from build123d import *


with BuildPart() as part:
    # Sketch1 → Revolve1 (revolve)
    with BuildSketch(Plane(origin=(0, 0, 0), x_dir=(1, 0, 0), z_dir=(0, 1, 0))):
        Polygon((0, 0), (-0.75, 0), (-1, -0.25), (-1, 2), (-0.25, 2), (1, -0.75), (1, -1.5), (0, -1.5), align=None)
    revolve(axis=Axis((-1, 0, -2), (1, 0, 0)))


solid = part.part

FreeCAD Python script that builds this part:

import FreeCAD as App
import Part
import Sketcher
Q = App.Units.Quantity


def add_polygon(sketch, points):
    """Adds a closed chain of lines whose ends are joined by coincident constraints."""
    first, n = sketch.GeometryCount, len(points)
    for a, b in zip(points, points[1:] + points[:1]):
        sketch.addGeometry(Part.LineSegment(App.Vector(*a, 0), App.Vector(*b, 0)), False)
    for i in range(n):
        sketch.addConstraint(Sketcher.Constraint("Coincident", first + i, 2, first + (i + 1) % n, 1))

doc = App.newDocument("Part")
params = doc.addObject("Spreadsheet::Sheet", "Params")
for row, (alias, value) in enumerate([
    ("sketch1_width", "1 mm"),
    ("sketch1_width2", "2 mm"),
    ("sketch1_height", "1.5 mm"),
    ("sketch1_width3", "0.75 mm"),
    ("revolution_angle", "360 deg"),
], start=1):
    params.set(f"A{row}", alias)
    params.set(f"B{row}", "=" + value)
    params.setAlias(f"B{row}", alias)

body = doc.addObject("PartDesign::Body", "Body")

# Sketch on XZ plane
sketch1 = body.newObject("Sketcher::SketchObject", "Sketch")
sketch1.AttachmentSupport = (doc.getObject("XZ_Plane"), [""])
sketch1.MapMode = "FlatFace"
add_polygon(sketch1, [(-0.75, 0), (0, 0), (0, 1.5), (1, 1.5), (1, 0.75), (-0.25, -2), (-1, -2), (-1, 0.25)])  # lines 0-7
sketch1.addGeometry(Part.LineSegment(App.Vector(-1, -2, 0), App.Vector(1, -2, 0)), True)  # axis
sketch1.addConstraint([
    Sketcher.Constraint("Horizontal", 0),
    Sketcher.Constraint("Vertical", 1),
    Sketcher.Constraint("Horizontal", 2),
    Sketcher.Constraint("Vertical", 3),
    Sketcher.Constraint("Horizontal", 5),
    Sketcher.Constraint("Vertical", 6),
    Sketcher.Constraint("Horizontal", 8),
    Sketcher.Constraint("Coincident", 0, 2, -1, 1),
    Sketcher.Constraint("Coincident", 8, 1, 5, 2),
    Sketcher.Constraint("Vertical", 3, 2, 8, 2),
    Sketcher.Constraint("Equal", 0, 5),
    Sketcher.Constraint("Equal", 5, 3),
    Sketcher.Constraint("DistanceX", 2, 1, 2, 2, 1.0),
    Sketcher.Constraint("DistanceX", 8, 1, 8, 2, 2.0),
    Sketcher.Constraint("Angle", 7, Q("-45 deg")),
    Sketcher.Constraint("DistanceY", 1, 1, 1, 2, 1.5),
    Sketcher.Constraint("DistanceY", 4, 2, -1, 1, 2.0),
    Sketcher.Constraint("DistanceX", 0, 1, 0, 2, 0.75),
])
sketch1.setExpression("Constraints[20]", "Params.sketch1_width")
sketch1.setExpression("Constraints[21]", "Params.sketch1_width2")
sketch1.setExpression("Constraints[23]", "Params.sketch1_height")
sketch1.setExpression("Constraints[25]", "Params.sketch1_width3")
revolution = body.newObject("PartDesign::Revolution", "Revolution")
revolution.Profile = sketch1
revolution.ReferenceAxis = (sketch1, ["Axis0"])
revolution.setExpression("Angle", "Params.revolution_angle")

doc.recompute()
